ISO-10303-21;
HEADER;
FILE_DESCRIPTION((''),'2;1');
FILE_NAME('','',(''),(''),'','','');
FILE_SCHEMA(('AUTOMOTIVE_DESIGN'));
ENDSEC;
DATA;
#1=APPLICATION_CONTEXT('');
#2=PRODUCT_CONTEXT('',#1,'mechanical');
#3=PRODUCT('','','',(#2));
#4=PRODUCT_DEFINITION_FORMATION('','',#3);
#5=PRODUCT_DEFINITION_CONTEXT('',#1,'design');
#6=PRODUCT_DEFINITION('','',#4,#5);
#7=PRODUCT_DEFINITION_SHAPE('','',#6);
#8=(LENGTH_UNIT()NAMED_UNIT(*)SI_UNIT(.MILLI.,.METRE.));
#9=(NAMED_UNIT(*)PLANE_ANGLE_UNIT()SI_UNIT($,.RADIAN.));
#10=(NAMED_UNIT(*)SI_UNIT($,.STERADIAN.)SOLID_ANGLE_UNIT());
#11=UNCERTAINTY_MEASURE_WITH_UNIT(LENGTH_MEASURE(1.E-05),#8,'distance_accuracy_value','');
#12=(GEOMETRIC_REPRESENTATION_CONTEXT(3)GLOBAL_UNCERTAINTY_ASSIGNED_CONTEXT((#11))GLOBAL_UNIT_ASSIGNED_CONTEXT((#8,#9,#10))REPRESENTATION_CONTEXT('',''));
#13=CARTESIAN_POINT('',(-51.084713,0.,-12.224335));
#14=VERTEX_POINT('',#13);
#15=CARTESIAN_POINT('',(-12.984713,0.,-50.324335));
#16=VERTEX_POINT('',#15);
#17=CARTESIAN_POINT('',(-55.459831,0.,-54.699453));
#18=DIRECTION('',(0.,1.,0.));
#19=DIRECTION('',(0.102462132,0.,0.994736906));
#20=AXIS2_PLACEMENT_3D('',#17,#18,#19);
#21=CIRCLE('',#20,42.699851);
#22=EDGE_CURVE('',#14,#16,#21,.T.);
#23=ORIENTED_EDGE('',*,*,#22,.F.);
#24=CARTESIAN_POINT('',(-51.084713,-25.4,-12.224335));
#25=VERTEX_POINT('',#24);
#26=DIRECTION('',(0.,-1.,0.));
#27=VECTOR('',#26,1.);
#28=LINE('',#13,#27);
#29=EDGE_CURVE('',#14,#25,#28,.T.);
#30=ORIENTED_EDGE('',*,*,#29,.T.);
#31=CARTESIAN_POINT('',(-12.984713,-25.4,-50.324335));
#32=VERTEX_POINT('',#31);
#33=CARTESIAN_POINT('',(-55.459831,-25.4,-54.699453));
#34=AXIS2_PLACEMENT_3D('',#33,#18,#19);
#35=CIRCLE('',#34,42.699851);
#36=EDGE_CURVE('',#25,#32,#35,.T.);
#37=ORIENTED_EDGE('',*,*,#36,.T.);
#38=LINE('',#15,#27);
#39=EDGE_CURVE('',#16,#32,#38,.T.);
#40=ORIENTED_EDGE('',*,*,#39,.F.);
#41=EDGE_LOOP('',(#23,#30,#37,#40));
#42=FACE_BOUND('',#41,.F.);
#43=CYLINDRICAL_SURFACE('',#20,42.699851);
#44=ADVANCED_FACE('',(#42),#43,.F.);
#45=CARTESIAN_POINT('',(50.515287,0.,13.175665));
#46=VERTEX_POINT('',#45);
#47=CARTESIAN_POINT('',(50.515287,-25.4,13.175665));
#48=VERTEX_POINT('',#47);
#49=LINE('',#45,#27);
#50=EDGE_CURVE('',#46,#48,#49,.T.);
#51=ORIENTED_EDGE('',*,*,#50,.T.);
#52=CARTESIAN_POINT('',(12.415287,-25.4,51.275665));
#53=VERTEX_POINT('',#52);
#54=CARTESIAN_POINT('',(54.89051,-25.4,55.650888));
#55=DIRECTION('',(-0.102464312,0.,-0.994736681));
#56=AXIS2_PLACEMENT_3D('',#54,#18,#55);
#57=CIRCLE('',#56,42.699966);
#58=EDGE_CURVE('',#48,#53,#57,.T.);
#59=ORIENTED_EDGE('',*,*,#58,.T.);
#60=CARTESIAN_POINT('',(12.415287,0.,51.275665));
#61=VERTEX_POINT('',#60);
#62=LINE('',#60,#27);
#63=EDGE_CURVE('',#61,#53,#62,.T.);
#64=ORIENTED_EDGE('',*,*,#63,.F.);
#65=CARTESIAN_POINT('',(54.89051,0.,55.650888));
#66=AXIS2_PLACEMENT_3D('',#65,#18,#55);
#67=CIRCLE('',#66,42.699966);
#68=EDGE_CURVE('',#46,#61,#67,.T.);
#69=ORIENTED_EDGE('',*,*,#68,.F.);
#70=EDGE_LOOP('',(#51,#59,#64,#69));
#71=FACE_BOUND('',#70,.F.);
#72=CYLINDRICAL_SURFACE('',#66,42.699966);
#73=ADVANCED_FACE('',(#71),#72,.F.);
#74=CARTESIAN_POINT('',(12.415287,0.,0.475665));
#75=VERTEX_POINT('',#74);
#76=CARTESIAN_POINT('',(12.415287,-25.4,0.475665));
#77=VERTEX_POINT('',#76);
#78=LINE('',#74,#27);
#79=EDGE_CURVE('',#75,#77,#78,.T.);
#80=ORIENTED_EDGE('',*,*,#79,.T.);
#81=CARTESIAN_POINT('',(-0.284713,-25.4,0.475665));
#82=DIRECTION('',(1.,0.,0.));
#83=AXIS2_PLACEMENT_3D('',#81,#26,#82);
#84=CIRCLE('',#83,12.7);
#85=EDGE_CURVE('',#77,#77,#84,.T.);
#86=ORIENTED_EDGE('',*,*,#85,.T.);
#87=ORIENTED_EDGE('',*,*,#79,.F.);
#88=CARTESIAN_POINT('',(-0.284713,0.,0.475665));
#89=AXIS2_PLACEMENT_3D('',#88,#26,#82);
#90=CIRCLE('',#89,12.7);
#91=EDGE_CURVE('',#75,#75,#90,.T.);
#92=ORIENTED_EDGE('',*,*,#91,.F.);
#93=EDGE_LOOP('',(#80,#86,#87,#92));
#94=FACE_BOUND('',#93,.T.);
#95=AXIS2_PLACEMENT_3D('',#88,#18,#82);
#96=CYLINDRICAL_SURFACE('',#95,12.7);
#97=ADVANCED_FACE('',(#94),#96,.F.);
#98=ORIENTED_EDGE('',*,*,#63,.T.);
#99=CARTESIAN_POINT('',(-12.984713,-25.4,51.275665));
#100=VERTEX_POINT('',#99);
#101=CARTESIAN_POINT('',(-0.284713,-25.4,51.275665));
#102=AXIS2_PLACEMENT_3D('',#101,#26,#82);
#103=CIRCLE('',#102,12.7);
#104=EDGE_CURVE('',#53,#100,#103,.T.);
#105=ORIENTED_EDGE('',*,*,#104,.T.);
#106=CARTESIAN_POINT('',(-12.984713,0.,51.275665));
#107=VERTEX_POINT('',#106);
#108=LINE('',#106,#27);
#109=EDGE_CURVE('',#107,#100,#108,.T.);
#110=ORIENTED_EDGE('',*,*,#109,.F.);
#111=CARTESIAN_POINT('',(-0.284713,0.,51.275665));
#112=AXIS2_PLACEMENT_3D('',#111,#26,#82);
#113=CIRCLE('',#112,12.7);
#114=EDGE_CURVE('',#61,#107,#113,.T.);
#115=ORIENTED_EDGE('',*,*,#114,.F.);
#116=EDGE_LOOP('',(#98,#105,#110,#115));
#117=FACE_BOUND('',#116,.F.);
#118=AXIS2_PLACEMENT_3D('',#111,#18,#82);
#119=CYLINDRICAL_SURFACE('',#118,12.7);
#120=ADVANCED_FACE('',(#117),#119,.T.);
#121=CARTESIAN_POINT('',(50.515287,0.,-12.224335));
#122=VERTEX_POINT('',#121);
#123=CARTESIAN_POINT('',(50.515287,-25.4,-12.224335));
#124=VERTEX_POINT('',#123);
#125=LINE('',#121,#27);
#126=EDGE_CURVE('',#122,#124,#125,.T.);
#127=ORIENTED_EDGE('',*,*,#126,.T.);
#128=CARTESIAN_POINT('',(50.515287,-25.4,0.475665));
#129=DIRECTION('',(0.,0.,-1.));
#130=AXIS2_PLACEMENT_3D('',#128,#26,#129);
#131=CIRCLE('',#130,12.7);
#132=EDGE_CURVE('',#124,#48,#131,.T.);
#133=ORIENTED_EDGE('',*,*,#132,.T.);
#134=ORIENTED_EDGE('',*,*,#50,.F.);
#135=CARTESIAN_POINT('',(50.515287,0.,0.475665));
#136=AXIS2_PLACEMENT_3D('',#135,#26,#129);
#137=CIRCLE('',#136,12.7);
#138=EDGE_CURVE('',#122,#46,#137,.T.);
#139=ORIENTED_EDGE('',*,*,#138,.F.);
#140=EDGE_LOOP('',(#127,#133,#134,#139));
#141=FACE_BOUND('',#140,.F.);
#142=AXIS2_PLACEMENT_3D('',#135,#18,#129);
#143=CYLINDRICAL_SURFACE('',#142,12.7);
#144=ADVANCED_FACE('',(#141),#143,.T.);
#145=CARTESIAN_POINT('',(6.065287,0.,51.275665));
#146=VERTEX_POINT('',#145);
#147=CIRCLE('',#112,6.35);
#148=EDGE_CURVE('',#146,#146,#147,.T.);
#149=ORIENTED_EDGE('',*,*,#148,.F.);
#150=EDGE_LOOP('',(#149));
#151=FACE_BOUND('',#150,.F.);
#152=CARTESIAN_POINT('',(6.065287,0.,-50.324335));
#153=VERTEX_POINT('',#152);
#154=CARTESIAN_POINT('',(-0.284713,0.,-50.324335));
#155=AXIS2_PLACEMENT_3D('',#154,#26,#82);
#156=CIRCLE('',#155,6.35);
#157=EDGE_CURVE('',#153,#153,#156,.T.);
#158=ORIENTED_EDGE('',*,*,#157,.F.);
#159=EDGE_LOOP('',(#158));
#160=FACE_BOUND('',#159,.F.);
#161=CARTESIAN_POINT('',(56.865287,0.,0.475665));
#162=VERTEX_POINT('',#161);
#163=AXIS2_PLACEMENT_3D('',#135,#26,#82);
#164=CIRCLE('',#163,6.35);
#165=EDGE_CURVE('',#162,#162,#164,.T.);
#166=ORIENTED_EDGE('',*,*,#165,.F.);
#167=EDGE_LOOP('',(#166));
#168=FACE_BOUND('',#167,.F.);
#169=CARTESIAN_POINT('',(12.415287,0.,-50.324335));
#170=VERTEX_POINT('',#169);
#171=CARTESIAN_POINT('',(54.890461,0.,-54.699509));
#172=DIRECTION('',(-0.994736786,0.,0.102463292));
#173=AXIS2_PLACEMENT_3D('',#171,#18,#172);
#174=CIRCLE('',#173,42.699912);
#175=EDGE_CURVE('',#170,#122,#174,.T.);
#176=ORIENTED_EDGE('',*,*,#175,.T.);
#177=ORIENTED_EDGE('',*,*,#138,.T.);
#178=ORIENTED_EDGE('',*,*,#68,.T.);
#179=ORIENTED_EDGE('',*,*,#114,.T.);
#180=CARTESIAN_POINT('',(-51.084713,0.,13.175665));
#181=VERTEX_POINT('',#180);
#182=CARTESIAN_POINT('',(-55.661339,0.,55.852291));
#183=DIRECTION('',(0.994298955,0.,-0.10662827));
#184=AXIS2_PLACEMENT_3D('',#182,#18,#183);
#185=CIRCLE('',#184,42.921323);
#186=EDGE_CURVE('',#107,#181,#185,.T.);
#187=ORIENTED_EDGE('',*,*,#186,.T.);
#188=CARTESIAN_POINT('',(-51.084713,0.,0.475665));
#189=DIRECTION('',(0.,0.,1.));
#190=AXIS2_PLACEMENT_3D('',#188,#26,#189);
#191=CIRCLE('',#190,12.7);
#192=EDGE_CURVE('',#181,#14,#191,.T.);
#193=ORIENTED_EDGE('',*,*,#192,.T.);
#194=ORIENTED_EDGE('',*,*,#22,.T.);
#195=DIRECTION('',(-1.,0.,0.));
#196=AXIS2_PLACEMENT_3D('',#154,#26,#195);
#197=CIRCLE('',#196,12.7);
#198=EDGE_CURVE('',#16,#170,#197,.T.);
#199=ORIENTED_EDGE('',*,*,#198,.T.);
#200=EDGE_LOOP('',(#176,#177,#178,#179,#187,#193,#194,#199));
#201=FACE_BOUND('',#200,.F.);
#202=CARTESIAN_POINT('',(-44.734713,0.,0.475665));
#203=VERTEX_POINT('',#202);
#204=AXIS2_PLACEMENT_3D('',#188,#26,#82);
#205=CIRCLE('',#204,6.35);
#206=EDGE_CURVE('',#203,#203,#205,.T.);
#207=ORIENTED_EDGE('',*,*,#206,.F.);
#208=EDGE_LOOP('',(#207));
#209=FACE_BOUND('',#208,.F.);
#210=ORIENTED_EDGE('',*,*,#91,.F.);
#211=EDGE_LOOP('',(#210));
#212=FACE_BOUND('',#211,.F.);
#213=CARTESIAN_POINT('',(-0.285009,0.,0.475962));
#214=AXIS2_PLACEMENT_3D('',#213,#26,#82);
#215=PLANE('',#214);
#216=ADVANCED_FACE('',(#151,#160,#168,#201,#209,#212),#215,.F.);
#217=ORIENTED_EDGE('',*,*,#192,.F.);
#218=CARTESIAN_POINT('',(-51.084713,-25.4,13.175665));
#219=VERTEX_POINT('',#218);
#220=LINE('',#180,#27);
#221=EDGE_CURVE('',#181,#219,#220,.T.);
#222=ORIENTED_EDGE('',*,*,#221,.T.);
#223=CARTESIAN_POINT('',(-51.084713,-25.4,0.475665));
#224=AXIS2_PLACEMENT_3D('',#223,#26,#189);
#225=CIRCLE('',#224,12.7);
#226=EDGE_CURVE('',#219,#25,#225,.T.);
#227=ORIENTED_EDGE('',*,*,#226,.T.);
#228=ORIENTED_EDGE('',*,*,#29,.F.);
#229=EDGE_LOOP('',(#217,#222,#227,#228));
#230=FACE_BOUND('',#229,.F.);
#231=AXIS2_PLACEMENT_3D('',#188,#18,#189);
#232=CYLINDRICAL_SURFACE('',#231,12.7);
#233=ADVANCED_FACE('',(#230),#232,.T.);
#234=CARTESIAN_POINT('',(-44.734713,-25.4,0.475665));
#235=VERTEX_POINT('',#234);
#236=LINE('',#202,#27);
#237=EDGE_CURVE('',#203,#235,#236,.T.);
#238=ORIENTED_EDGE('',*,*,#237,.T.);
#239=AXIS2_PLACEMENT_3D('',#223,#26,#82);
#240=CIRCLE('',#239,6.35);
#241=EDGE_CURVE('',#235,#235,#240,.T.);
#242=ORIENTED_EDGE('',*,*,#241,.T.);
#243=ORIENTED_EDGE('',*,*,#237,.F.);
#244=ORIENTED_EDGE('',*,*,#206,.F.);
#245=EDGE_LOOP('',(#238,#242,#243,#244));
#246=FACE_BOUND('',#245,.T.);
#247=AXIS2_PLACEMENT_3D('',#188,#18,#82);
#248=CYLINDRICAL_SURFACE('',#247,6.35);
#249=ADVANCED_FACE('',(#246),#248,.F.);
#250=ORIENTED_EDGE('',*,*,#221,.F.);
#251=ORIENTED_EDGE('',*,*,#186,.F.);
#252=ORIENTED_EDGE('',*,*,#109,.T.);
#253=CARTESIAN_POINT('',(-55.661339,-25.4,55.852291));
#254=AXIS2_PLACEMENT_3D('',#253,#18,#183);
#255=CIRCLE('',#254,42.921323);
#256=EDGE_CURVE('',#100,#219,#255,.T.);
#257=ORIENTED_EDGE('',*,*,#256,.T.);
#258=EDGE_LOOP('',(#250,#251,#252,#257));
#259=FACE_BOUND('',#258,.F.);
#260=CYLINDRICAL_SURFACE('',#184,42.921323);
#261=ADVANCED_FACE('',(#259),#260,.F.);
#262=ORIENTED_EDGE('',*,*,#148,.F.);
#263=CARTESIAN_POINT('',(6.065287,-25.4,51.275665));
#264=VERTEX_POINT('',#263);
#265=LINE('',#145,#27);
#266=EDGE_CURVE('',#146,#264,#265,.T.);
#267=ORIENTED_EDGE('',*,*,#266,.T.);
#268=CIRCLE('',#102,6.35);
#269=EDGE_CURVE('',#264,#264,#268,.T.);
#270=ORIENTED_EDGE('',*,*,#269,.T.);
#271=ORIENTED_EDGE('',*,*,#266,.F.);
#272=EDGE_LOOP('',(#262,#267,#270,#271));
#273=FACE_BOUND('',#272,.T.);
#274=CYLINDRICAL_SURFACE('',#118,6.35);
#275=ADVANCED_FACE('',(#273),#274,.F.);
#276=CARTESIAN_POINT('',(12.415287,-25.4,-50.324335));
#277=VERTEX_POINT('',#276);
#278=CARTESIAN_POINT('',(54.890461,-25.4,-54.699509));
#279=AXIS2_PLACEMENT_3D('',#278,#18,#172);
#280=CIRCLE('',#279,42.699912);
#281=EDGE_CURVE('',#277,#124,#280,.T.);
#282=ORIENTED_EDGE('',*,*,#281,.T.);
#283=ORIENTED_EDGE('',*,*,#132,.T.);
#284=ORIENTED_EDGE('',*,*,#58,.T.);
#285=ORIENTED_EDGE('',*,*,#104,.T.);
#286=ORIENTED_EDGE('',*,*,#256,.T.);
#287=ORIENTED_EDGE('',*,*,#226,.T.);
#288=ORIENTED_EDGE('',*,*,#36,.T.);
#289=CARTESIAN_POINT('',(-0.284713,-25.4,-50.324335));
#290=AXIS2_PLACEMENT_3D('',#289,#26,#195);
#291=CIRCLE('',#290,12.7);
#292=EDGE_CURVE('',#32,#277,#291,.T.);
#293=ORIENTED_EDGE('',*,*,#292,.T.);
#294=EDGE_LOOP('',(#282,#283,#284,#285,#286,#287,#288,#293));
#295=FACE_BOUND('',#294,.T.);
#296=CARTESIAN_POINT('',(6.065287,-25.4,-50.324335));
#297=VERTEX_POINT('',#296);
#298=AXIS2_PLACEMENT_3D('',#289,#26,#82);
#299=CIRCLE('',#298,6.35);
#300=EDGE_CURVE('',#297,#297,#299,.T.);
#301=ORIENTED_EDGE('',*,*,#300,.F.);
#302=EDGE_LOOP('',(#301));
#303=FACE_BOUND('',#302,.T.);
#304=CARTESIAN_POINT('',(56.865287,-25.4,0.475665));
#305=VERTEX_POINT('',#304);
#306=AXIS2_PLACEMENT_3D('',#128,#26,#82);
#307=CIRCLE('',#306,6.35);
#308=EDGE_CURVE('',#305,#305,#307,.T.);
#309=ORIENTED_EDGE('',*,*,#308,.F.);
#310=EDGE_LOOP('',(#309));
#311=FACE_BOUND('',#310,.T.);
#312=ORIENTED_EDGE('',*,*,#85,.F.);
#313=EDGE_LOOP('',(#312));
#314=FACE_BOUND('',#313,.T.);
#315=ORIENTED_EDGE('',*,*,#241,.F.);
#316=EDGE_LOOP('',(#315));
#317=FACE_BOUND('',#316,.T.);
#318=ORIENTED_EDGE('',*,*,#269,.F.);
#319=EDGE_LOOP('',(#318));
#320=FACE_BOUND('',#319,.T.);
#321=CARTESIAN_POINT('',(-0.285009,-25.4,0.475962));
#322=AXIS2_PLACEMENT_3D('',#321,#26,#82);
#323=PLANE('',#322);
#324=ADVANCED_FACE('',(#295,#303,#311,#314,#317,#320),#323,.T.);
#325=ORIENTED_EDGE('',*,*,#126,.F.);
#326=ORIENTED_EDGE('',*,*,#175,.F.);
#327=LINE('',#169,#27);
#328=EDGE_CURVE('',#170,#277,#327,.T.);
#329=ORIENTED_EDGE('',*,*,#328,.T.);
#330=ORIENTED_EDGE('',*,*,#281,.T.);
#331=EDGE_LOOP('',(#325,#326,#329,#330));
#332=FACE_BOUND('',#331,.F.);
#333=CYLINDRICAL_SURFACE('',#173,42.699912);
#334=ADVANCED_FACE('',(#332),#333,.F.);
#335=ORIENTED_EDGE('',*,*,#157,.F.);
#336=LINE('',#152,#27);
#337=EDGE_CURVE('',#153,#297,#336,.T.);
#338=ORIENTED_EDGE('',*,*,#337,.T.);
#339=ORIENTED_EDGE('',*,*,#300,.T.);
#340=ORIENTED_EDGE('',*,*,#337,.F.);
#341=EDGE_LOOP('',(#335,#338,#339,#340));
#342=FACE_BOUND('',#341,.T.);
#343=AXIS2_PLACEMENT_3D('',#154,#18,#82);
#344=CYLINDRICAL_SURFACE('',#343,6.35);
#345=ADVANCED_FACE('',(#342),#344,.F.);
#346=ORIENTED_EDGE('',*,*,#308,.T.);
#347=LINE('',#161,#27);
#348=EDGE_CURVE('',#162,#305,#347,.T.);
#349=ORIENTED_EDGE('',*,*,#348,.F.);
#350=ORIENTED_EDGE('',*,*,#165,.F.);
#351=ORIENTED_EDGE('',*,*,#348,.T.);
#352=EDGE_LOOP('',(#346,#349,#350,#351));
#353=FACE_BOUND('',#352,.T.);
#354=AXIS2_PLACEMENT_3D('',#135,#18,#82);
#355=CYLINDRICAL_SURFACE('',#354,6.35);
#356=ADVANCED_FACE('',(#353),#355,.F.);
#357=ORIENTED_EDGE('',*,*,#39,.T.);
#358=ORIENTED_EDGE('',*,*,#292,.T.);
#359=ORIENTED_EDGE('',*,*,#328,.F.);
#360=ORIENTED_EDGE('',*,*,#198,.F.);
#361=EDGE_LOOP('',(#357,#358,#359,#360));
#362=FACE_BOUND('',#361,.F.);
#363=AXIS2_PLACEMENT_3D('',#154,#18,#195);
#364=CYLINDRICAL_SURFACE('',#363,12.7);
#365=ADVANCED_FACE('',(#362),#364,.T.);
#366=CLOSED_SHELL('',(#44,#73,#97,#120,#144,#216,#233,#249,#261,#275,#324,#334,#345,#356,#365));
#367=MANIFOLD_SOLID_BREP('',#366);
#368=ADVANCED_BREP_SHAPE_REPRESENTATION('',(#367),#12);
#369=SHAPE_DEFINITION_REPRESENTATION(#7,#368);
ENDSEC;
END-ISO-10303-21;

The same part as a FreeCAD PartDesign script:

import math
import FreeCAD as App
import Part
import Sketcher

V = App.Vector
Q = App.Units.Quantity

doc = App.newDocument("Part")
params = doc.addObject("Spreadsheet::Sheet", "Params")
for row, (alias, value) in enumerate([
    ("sketch1_diameter", "1 in"),
    ("sketch1_diameter2", "0.5 in"),
    ("pad1_length", "1 in"),
], start=1):
    params.set(f"A{row}", alias)
    params.set(f"B{row}", "=" + value)
    params.setAlias(f"B{row}", alias)

body = doc.addObject("PartDesign::Body", "Body")

# Sketch on XZ plane
sketch1 = doc.addObject("Sketcher::SketchObject", "Sketch")
body.addObject(sketch1)
sketch1.AttachmentSupport = (doc.XZ_Plane, [""])
sketch1.MapMode = "FlatFace"
sketch1.addGeometry([
    Part.ArcOfCircle(Part.Circle(V(-56, 56, 0), V(0, 0, 1), 43), math.radians(-84), math.radians(-6)),  # 0
    Part.ArcOfCircle(Part.Circle(V(-51, 0, 0), V(0, 0, 1), 13), math.radians(90), math.radians(270)),  # 1
    Part.ArcOfCircle(Part.Circle(V(-55, -55, 0), V(0, 0, 1), 43), math.radians(6), math.radians(84)),  # 2
    Part.ArcOfCircle(Part.Circle(V(0, -50, 0), V(0, 0, 1), 13), math.radians(180), math.radians(360)),  # 3
    Part.ArcOfCircle(Part.Circle(V(55, -55, 0), V(0, 0, 1), 43), math.radians(96), math.radians(174)),  # 4
    Part.ArcOfCircle(Part.Circle(V(51, 0, 0), V(0, 0, 1), 13), math.radians(-90), math.radians(90)),  # 5
    Part.ArcOfCircle(Part.Circle(V(55, 56, 0), V(0, 0, 1), 43), math.radians(-174), math.radians(-96)),  # 6
    Part.ArcOfCircle(Part.Circle(V(0, 51, 0), V(0, 0, 1), 13), math.radians(0), math.radians(180)),  # 7
    Part.Circle(V(0, -50, 0), V(0, 0, 1), 6),  # 8
    Part.Circle(V(-51, 0, 0), V(0, 0, 1), 6),  # 9
    Part.Circle(V(0, 0, 0), V(0, 0, 1), 13),  # 10
    Part.Circle(V(0, 51, 0), V(0, 0, 1), 6),  # 11
    Part.Circle(V(51, 0, 0), V(0, 0, 1), 6),  # 12
], False)
sketch1.addConstraint([
    Sketcher.Constraint("Coincident", 0, 1, 1, 1),
    Sketcher.Constraint("Coincident", 1, 2, 2, 2),
    Sketcher.Constraint("Coincident", 2, 1, 3, 1),
    Sketcher.Constraint("Coincident", 3, 2, 4, 2),
    Sketcher.Constraint("Coincident", 4, 1, 5, 1),
    Sketcher.Constraint("Coincident", 5, 2, 6, 2),
    Sketcher.Constraint("Coincident", 6, 1, 7, 1),
    Sketcher.Constraint("Coincident", 7, 2, 0, 2),
    Sketcher.Constraint("Coincident", 8, 3, 3, 3),
    Sketcher.Constraint("Coincident", 9, 3, 1, 3),
    Sketcher.Constraint("Coincident", 11, 3, 7, 3),
    Sketcher.Constraint("Coincident", 12, 3, 5, 3),
    Sketcher.Constraint("Equal", 1, 3),
    Sketcher.Constraint("Equal", 3, 5),
    Sketcher.Constraint("Equal", 5, 7),
    Sketcher.Constraint("Equal", 8, 9),
    Sketcher.Constraint("Equal", 7, 10),
    Sketcher.Constraint("Equal", 9, 11),
    Sketcher.Constraint("Equal", 11, 12),
    Sketcher.Constraint("Horizontal", 1, 3, 5, 3),
    Sketcher.Constraint("Horizontal", 9, 3, 10, 3),
    Sketcher.Constraint("Horizontal", 8, 3, 2, 1),
    Sketcher.Constraint("Horizontal", 2, 1, 3, 2),
    Sketcher.Constraint("Horizontal", 11, 3, 6, 1),
    Sketcher.Constraint("Horizontal", 6, 1, 7, 2),
    Sketcher.Constraint("Vertical", 3, 3, 7, 3),
    Sketcher.Constraint("Vertical", 8, 3, 10, 3),
    Sketcher.Constraint("Vertical", 9, 3, 0, 1),
    Sketcher.Constraint("Vertical", 0, 1, 1, 2),
    Sketcher.Constraint("Vertical", 12, 3, 4, 1),
    Sketcher.Constraint("Vertical", 4, 1, 5, 2),
    Sketcher.Constraint("Diameter", 10, Q("1 in")),
    Sketcher.Constraint("Diameter", 8, Q("0.5 in")),
    Sketcher.Constraint("DistanceX", 1, 3, 3, 3, Q("2 in")),
    Sketcher.Constraint("DistanceY", 3, 3, 1, 3, Q("2 in")),
    Sketcher.Constraint("DistanceX", 3, 3, 5, 3, Q("2 in")),
    Sketcher.Constraint("DistanceY", 1, 3, 7, 3, Q("2 in")),
    Sketcher.Constraint("Radius", 2, Q("42.699851 mm")),
    Sketcher.Constraint("Radius", 0, Q("42.921323 mm")),
    Sketcher.Constraint("Radius", 4, Q("42.699912 mm")),
    Sketcher.Constraint("Radius", 6, Q("42.699966 mm")),
    Sketcher.Constraint("DistanceX", 0, 3, -1, 1, Q("55.661339 mm")),
    Sketcher.Constraint("DistanceY", -1, 1, 0, 3, Q("55.852291 mm")),
])
sketch1.setExpression("Constraints[31]", "Params.sketch1_diameter")
sketch1.setExpression("Constraints[32]", "Params.sketch1_diameter2")
pad1 = doc.addObject("PartDesign::Pad", "Pad")
body.addObject(pad1)
pad1.Profile = sketch1
pad1.setExpression("Length", "Params.pad1_length")

doc.recompute()
